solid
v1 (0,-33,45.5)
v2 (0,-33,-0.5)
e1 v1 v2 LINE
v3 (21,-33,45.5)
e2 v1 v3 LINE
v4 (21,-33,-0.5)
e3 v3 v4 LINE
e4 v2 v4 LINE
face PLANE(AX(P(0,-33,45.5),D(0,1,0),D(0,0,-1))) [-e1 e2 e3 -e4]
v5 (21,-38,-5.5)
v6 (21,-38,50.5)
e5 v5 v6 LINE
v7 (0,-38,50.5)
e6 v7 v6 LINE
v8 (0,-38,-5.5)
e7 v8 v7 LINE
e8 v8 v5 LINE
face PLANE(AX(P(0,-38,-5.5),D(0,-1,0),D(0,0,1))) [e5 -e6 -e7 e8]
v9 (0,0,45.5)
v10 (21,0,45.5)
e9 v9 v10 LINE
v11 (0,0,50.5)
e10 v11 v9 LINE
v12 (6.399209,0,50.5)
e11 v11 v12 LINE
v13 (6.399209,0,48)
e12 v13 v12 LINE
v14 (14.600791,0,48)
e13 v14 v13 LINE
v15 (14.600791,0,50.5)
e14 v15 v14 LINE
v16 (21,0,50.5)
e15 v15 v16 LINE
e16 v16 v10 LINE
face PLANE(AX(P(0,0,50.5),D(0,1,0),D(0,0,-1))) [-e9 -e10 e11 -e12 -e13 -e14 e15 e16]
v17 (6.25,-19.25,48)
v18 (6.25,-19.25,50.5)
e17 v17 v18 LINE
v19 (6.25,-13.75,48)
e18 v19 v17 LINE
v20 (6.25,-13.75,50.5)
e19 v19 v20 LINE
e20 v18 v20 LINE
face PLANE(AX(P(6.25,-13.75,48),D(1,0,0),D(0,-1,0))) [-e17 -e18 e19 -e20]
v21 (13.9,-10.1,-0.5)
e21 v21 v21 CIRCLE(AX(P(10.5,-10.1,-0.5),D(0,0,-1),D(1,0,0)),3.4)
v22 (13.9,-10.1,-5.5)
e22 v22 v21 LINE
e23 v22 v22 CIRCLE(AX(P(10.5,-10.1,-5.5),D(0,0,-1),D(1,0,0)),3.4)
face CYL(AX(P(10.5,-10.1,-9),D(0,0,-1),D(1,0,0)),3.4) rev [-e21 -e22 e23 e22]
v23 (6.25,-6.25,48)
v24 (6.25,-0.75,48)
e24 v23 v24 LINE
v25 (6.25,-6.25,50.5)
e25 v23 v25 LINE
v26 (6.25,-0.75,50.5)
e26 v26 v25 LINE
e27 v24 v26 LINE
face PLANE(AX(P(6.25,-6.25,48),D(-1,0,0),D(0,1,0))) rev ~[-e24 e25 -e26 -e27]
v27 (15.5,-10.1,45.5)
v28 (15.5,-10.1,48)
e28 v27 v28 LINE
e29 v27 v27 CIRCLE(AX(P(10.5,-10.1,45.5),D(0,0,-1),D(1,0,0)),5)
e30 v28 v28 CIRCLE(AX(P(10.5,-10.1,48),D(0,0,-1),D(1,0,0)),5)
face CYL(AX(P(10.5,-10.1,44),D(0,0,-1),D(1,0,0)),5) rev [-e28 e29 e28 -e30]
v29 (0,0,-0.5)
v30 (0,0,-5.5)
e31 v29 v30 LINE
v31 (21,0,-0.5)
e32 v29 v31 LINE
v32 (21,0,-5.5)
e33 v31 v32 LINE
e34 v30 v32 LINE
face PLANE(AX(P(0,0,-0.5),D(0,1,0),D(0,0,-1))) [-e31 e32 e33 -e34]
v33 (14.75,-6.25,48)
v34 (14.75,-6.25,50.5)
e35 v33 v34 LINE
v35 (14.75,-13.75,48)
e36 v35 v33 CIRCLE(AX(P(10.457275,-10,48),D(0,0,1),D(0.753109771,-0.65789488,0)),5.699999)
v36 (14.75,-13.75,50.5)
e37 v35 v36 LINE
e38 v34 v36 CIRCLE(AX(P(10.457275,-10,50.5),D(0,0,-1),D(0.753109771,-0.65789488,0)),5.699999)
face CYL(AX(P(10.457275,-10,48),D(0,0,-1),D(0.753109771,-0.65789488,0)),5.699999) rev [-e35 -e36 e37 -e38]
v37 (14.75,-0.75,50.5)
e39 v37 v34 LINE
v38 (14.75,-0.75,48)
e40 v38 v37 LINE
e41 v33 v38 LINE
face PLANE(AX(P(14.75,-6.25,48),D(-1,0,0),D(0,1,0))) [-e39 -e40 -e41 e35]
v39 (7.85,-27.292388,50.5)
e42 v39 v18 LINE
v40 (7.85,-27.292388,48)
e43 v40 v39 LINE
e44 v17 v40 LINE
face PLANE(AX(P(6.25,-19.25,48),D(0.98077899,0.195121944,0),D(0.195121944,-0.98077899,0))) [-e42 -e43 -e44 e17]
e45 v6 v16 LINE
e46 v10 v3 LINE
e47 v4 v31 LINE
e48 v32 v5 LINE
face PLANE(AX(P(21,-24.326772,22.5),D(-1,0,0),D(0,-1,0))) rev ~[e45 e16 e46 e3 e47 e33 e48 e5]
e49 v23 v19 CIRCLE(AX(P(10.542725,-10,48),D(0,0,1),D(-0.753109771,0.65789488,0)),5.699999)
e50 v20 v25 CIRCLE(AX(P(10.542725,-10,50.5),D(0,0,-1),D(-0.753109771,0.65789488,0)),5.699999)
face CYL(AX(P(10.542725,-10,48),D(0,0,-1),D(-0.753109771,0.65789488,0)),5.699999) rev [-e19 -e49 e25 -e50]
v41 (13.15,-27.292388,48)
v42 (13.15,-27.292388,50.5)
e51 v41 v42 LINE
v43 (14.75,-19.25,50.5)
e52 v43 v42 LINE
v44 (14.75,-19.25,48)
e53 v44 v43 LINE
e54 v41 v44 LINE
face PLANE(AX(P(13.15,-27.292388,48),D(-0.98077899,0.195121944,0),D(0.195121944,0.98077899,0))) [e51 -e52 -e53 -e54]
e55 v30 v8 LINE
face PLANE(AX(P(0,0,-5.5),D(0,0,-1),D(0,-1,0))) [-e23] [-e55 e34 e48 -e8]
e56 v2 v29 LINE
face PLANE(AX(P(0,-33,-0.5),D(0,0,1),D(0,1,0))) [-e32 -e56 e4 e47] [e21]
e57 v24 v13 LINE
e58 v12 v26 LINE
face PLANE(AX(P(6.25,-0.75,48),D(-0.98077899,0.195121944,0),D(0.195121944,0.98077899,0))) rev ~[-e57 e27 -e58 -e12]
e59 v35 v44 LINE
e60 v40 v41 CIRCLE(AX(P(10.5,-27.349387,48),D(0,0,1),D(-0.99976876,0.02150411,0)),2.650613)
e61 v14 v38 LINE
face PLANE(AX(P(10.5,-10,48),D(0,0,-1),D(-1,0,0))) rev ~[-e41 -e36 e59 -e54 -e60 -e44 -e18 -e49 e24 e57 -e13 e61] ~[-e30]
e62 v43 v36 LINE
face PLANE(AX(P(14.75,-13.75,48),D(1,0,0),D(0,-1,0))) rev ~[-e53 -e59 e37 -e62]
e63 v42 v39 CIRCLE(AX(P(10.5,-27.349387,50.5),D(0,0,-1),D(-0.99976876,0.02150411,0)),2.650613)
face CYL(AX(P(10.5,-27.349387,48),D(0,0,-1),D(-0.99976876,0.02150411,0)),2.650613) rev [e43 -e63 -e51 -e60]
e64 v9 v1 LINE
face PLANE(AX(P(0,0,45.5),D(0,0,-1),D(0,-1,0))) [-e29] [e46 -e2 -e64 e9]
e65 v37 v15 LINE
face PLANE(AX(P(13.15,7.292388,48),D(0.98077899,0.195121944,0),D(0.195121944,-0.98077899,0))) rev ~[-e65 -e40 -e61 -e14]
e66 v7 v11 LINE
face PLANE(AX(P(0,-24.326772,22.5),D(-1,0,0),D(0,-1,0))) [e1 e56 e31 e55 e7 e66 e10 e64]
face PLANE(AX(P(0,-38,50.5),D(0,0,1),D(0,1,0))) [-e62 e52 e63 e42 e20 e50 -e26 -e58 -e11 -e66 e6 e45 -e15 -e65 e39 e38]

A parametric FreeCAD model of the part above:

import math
import FreeCAD as App
import Part
import Sketcher
from FreeCAD import Vector

doc = App.newDocument("Part")
body = doc.addObject("PartDesign::Body", "Body")

sketch1 = body.newObject("Sketcher::SketchObject", "Sketch")
sketch1.AttachmentSupport = (doc.getObject("XY_Plane"), [""])
sketch1.MapMode = "FlatFace"
sketch1.AttachmentOffset = App.Placement(Vector(0, 0, -9), App.Rotation())
sketch1.addGeometry(Part.Circle(Vector(10.5, -10.1, 0), Vector(0, 0, 1), 3.4), False)
sketch1.addConstraint(Sketcher.Constraint("Diameter", 0, 6.8))
sketch1.addConstraint(Sketcher.Constraint("DistanceX", -1, 1, 0, 3, 10.5))
sketch1.addConstraint(Sketcher.Constraint("DistanceY", 0, 3, -1, 1, 10.1))
pad1 = body.newObject("PartDesign::Pad", "Pad")
pad1.Profile = sketch1
pad1.Length = 44
body2 = doc.addObject("PartDesign::Body", "Body001")

sketch2 = body2.newObject("Sketcher::SketchObject", "Sketch001")
sketch2.AttachmentSupport = (doc.getObject("XY_Plane001"), [""])
sketch2.MapMode = "FlatFace"
sketch2.AttachmentOffset = App.Placement(Vector(0, 0, 44), App.Rotation())
sketch2.addGeometry(Part.Circle(Vector(10, -10, 0), Vector(0, 0, 1), 5), False)
sketch2.addConstraint(Sketcher.Constraint("Diameter", 0, 10.0))
sketch2.addConstraint(Sketcher.Constraint("DistanceX", -1, 1, 0, 3, 10.5))
sketch2.addConstraint(Sketcher.Constraint("DistanceY", 0, 3, -1, 1, 10.1))
pad2 = body2.newObject("PartDesign::Pad", "Pad001")
pad2.Profile = sketch2
pad2.Length = 9
body3 = doc.addObject("PartDesign::Body", "Body002")

sketch3 = body3.newObject("Sketcher::SketchObject", "Sketch002")
sketch3.AttachmentSupport = (doc.getObject("XY_Plane002"), [""])
sketch3.MapMode = "FlatFace"
sketch3.addGeometry(Part.LineSegment(Vector(-4.2, 9.2, 0), Vector(-4.2, 3.8, 0)), False)
sketch3.addGeometry(Part.ArcOfCircle(Part.Circle(Vector(0, 0, 0), Vector(0, 0, 1), 5.7), math.radians(139), math.radians(221)), False)
sketch3.addGeometry(Part.LineSegment(Vector(-4.2, -3.8, 0), Vector(-4.2, -9.2, 0)), False)
sketch3.addGeometry(Part.LineSegment(Vector(-4.2, -9.2, 0), Vector(-2.6, -17.3, 0)), False)
sketch3.addGeometry(Part.ArcOfCircle(Part.Circle(Vector(0, -17.3, 0), Vector(0, 0, 1), 2.7), math.radians(179), math.radians(361)), False)
sketch3.addGeometry(Part.LineSegment(Vector(2.6, -17.3, 0), Vector(4.2, -9.2, 0)), False)
sketch3.addGeometry(Part.LineSegment(Vector(4.2, -9.2, 0), Vector(4.2, -3.8, 0)), False)
sketch3.addGeometry(Part.ArcOfCircle(Part.Circle(Vector(0, 0, 0), Vector(0, 0, 1), 5.7), math.radians(-41), math.radians(41)), False)
sketch3.addGeometry(Part.LineSegment(Vector(4.2, 3.8, 0), Vector(4.2, 9.2, 0)), False)
sketch3.addGeometry(Part.LineSegment(Vector(4.2, 9.2, 0), Vector(2.6, 17.3, 0)), False)
sketch3.addGeometry(Part.ArcOfCircle(Part.Circle(Vector(0, 17.3, 0), Vector(0, 0, 1), 2.7), math.radians(-1), math.radians(181)), False)
sketch3.addGeometry(Part.LineSegment(Vector(-2.6, 17.3, 0), Vector(-4.2, 9.2, 0)), False)
sketch3.addConstraint(Sketcher.Constraint("Coincident", 0, 2, 1, 1))
sketch3.addConstraint(Sketcher.Constraint("Coincident", 1, 2, 2, 1))
sketch3.addConstraint(Sketcher.Constraint("Coincident", 2, 2, 3, 1))
sketch3.addConstraint(Sketcher.Constraint("Coincident", 3, 2, 4, 1))
sketch3.addConstraint(Sketcher.Constraint("Coincident", 4, 2, 5, 1))
sketch3.addConstraint(Sketcher.Constraint("Coincident", 5, 2, 6, 1))
sketch3.addConstraint(Sketcher.Constraint("Coincident", 6, 2, 7, 1))
sketch3.addConstraint(Sketcher.Constraint("Coincident", 7, 2, 8, 1))
sketch3.addConstraint(Sketcher.Constraint("Coincident", 8, 2, 9, 1))
sketch3.addConstraint(Sketcher.Constraint("Coincident", 9, 2, 10, 1))
sketch3.addConstraint(Sketcher.Constraint("Coincident", 10, 2, 11, 1))
sketch3.addConstraint(Sketcher.Constraint("Coincident", 11, 2, 0, 1))
sketch3.addConstraint(Sketcher.Constraint("Vertical", 0))
sketch3.addConstraint(Sketcher.Constraint("Vertical", 2))
sketch3.addConstraint(Sketcher.Constraint("Vertical", 6))
sketch3.addConstraint(Sketcher.Constraint("Vertical", 8))
sketch3.addConstraint(Sketcher.Constraint("Equal", 1, 7))
sketch3.addConstraint(Sketcher.Constraint("Equal", 4, 10))
sketch3.addConstraint(Sketcher.Constraint("Symmetric", 1, 3, 7, 3, -1, 1))
sketch3.addConstraint(Sketcher.Constraint("Symmetric", 4, 3, 10, 3, -1, 1))
sketch3.addConstraint(Sketcher.Constraint("Symmetric", 2, 2, 8, 2, -1, 1))
sketch3.addConstraint(Sketcher.Constraint("Symmetric", 5, 2, 11, 2, -1, 1))
sketch3.addConstraint(Sketcher.Constraint("Symmetric", 3, 2, 4, 2, -2))
sketch3.addConstraint(Sketcher.Constraint("Symmetric", 2, 2, 5, 2, -2))
sketch3.addConstraint(Sketcher.Constraint("PointOnObject", 1, 3, -1))
sketch3.addConstraint(Sketcher.Constraint("Parallel", 3, 9))
sketch3.addConstraint(Sketcher.Constraint("Parallel", 5, 11))
sketch3.addConstraint(Sketcher.Constraint("Radius", 1, 5.699999))
sketch3.addConstraint(Sketcher.Constraint("DistanceY", 0, 2, 0, 1, 5.5))
sketch3.addConstraint(Sketcher.Constraint("DistanceY", 2, 2, 0, 2, 13.0))
sketch3.addConstraint(Sketcher.Constraint("Distance", 3, 8.2))
sketch3.addConstraint(Sketcher.Constraint("DistanceX", 2, 2, 3, 2, 1.6))
sketch3.addConstraint(Sketcher.Constraint("DistanceX", 3, 2, 4, 2, 5.3))
sketch3.addConstraint(Sketcher.Constraint("Radius", 4, 2.650613))
pad3 = body3.newObject("PartDesign::Pad", "Pad002")
pad3.Profile = sketch3
pad3.Length = 5
body4 = doc.addObject("PartDesign::Body", "Body003")
doc.recompute()

body3.Placement = App.Placement(Vector(10.5, -10, 48), App.Rotation(Vector(0, 0, 1), 0))
boolean = body4.newObject("PartDesign::Boolean", "Boolean")
boolean.Type = "Fuse"
boolean.addObjects([body3])
doc.recompute()

boolean2 = body4.newObject("PartDesign::Boolean", "Boolean001")
boolean2.Type = "Fuse"
boolean2.addObjects([body2])
body5 = doc.addObject("PartDesign::Body", "Body004")

sketch4 = body5.newObject("Sketcher::SketchObject", "Sketch003")
sketch4.AttachmentSupport = (doc.getObject("YZ_Plane004"), [""])
sketch4.MapMode = "FlatFace"
sketch4.addGeometry(Part.LineSegment(Vector(0, 0, 0), Vector(-33, 0, 0)), False)
sketch4.addGeometry(Part.LineSegment(Vector(-33, 0, 0), Vector(-33, 46, 0)), False)
sketch4.addGeometry(Part.LineSegment(Vector(-33, 46, 0), Vector(0, 46, 0)), False)
sketch4.addGeometry(Part.LineSegment(Vector(0, 46, 0), Vector(0, 50, 0)), False)
sketch4.addGeometry(Part.LineSegment(Vector(0, 50, 0), Vector(-38, 50, 0)), False)
sketch4.addGeometry(Part.LineSegment(Vector(-38, 50, 0), Vector(-38, -6, 0)), False)
sketch4.addGeometry(Part.LineSegment(Vector(-38, -6, 0), Vector(0, -6, 0)), False)
sketch4.addGeometry(Part.LineSegment(Vector(0, -6, 0), Vector(0, 0, 0)), False)
sketch4.addConstraint(Sketcher.Constraint("Coincident", 0, 2, 1, 1))
sketch4.addConstraint(Sketcher.Constraint("Coincident", 1, 2, 2, 1))
sketch4.addConstraint(Sketcher.Constraint("Coincident", 2, 2, 3, 1))
sketch4.addConstraint(Sketcher.Constraint("Coincident", 3, 2, 4, 1))
sketch4.addConstraint(Sketcher.Constraint("Coincident", 4, 2, 5, 1))
sketch4.addConstraint(Sketcher.Constraint("Coincident", 5, 2, 6, 1))
sketch4.addConstraint(Sketcher.Constraint("Coincident", 6, 2, 7, 1))
sketch4.addConstraint(Sketcher.Constraint("Coincident", 7, 2, 0, 1))
sketch4.addConstraint(Sketcher.Constraint("Horizontal", 0))
sketch4.addConstraint(Sketcher.Constraint("Vertical", 1))
sketch4.addConstraint(Sketcher.Constraint("Horizontal", 2))
sketch4.addConstraint(Sketcher.Constraint("Vertical", 3))
sketch4.addConstraint(Sketcher.Constraint("Horizontal", 4))
sketch4.addConstraint(Sketcher.Constraint("Vertical", 5))
sketch4.addConstraint(Sketcher.Constraint("Horizontal", 6))
sketch4.addConstraint(Sketcher.Constraint("Vertical", 7))
sketch4.addConstraint(Sketcher.Constraint("PointOnObject", 2, 2, -2))
sketch4.addConstraint(Sketcher.Constraint("PointOnObject", 6, 2, -2))
sketch4.addConstraint(Sketcher.Constraint("Equal", 3, 7))
sketch4.addConstraint(Sketcher.Constraint("DistanceX", 0, 2, 0, 1, 33.0))
sketch4.addConstraint(Sketcher.Constraint("DistanceX", 4, 2, 4, 1, 38.0))
sketch4.addConstraint(Sketcher.Constraint("DistanceY", 1, 1, 1, 2, 46.0))
sketch4.addConstraint(Sketcher.Constraint("DistanceY", 3, 1, 3, 2, 5.0))
sketch4.addConstraint(Sketcher.Constraint("DistanceY", 0, 2, -1, 1, 0.5))
pad4 = body5.newObject("PartDesign::Pad", "Pad003")
pad4.Profile = sketch4
pad4.Length = 21
doc.recompute()

boolean3 = body5.newObject("PartDesign::Boolean", "Boolean002")
boolean3.Type = "Cut"
boolean3.addObjects([body4])
doc.recompute()

boolean4 = body5.newObject("PartDesign::Boolean", "Boolean003")
boolean4.Type = "Cut"
boolean4.addObjects([body])

doc.recompute()
